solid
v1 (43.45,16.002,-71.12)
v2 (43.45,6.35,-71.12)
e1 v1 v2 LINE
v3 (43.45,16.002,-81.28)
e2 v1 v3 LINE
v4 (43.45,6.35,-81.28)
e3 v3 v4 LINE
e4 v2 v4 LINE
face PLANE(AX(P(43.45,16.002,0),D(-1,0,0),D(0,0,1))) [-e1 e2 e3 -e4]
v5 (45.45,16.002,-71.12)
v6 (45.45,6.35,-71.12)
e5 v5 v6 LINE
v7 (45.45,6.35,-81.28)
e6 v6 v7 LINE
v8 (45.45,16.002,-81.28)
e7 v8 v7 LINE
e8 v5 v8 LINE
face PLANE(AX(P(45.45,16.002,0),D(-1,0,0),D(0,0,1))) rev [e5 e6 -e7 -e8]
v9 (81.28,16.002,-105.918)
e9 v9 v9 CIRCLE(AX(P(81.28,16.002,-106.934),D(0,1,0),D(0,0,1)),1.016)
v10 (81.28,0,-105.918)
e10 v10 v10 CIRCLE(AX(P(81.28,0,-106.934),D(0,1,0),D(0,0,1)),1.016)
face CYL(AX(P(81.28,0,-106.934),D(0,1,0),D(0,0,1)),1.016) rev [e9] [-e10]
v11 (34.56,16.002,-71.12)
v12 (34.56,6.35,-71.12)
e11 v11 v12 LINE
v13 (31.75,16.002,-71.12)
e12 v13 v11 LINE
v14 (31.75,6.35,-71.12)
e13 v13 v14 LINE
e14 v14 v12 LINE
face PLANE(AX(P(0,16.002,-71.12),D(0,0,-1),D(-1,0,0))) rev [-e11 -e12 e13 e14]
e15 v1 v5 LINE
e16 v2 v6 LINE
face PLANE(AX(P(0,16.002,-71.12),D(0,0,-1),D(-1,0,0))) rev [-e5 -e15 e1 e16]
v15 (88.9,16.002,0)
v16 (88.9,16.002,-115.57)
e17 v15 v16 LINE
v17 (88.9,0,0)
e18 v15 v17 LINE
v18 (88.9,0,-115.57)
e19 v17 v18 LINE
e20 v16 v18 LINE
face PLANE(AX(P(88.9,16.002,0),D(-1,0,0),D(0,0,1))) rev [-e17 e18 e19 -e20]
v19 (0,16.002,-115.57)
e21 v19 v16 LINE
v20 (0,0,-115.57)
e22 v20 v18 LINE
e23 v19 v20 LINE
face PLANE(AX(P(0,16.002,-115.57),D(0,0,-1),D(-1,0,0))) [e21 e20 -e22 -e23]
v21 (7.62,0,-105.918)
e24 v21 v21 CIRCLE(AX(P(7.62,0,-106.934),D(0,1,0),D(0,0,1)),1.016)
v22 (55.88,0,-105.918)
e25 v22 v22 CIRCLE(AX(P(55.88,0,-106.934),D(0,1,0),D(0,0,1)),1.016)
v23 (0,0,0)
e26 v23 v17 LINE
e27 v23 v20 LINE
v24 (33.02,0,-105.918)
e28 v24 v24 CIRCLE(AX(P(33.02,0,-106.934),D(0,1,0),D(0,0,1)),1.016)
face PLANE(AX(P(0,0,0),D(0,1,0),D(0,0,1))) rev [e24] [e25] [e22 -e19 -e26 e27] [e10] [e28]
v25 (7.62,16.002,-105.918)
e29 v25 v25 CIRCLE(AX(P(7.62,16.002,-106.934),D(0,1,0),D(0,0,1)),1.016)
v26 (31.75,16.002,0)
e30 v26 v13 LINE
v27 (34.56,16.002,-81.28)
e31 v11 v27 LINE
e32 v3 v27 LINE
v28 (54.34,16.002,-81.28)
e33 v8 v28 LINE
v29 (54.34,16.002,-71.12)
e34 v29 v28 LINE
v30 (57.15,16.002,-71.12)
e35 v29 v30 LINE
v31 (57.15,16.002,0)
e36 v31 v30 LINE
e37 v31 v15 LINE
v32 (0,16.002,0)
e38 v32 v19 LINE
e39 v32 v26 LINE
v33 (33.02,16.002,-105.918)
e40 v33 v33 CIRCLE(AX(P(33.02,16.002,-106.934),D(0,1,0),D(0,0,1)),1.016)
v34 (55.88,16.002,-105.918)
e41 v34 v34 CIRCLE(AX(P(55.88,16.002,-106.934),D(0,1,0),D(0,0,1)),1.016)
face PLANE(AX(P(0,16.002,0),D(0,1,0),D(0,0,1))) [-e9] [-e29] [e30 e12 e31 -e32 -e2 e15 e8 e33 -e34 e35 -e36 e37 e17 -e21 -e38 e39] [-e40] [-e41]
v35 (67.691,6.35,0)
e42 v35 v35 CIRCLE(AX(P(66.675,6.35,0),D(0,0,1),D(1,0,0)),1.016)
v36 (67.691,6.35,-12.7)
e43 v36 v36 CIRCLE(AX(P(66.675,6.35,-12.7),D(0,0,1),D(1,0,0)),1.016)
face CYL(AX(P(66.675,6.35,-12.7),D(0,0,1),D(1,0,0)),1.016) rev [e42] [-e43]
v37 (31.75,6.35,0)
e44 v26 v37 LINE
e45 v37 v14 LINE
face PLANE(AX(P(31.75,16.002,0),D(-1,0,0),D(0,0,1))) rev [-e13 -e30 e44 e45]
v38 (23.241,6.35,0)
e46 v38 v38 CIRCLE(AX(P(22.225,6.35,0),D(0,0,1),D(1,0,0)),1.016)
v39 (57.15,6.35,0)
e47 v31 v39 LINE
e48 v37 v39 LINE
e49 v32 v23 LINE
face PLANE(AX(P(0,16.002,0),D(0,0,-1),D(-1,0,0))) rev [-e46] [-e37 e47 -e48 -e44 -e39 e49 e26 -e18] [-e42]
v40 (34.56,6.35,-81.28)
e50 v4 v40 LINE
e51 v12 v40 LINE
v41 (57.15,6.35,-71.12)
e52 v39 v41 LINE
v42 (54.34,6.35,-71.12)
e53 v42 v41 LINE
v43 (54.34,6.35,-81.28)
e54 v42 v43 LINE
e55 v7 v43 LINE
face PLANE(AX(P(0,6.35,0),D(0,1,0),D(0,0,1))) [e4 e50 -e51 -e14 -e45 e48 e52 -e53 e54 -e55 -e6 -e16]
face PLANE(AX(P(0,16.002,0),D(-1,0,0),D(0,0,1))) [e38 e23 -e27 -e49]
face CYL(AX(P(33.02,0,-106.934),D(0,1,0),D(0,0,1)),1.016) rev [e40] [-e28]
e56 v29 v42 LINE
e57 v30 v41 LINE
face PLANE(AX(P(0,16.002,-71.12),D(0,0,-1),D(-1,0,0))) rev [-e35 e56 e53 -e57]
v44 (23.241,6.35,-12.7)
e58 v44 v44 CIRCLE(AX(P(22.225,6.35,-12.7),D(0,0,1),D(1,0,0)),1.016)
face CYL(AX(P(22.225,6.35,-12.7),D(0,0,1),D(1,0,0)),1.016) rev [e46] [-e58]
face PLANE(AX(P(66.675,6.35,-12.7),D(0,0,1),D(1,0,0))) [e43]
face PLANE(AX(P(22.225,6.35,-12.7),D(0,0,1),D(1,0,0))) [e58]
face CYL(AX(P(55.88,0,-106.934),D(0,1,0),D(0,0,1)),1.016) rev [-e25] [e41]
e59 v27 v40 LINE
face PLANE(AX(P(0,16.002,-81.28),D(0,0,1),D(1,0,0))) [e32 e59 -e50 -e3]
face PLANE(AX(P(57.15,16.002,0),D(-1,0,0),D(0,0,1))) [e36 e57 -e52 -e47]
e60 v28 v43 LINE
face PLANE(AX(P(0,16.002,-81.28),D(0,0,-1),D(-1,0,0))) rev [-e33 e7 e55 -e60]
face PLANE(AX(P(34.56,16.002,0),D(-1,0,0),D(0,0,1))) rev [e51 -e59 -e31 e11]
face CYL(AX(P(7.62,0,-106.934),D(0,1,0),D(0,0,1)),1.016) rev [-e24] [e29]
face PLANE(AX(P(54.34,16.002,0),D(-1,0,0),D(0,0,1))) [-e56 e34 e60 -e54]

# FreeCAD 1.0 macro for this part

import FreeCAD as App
import Part
import Sketcher

V = App.Vector
Q = App.Units.Quantity


def add_polygon(sketch, points):
    """Adds a closed chain of lines whose ends are joined by coincident constraints."""
    first, n = sketch.GeometryCount, len(points)
    for a, b in zip(points, points[1:] + points[:1]):
        sketch.addGeometry(Part.LineSegment(App.Vector(*a, 0), App.Vector(*b, 0)), False)
    for i in range(n):
        sketch.addConstraint(Sketcher.Constraint("Coincident", first + i, 2, first + (i + 1) % n, 1))

doc = App.newDocument("Part")
body = doc.addObject("PartDesign::Body", "Body")

sketch1 = body.newObject("Sketcher::SketchObject", "Sketch")
sketch1.AttachmentSupport = (doc.getObject("XZ_Plane"), [""])
sketch1.MapMode = "FlatFace"
add_polygon(sketch1, [(0, -115.6), (0, 0), (31.8, 0), (31.8, -71.1), (34.6, -71.1), (34.6, -81.3), (43.5, -81.3), (43.5, -71.1), (45.5, -71.1), (45.5, -81.3), (54.3, -81.3), (54.3, -71.1), (57.1, -71.1), (57.1, 0), (88.9, 0), (88.9, -115.6)])
sketch1.addConstraint(Sketcher.Constraint("Vertical", 0))
sketch1.addConstraint(Sketcher.Constraint("Horizontal", 1))
sketch1.addConstraint(Sketcher.Constraint("Vertical", 2))
sketch1.addConstraint(Sketcher.Constraint("Horizontal", 3))
sketch1.addConstraint(Sketcher.Constraint("Vertical", 4))
sketch1.addConstraint(Sketcher.Constraint("Horizontal", 5))
sketch1.addConstraint(Sketcher.Constraint("Vertical", 6))
sketch1.addConstraint(Sketcher.Constraint("Horizontal", 7))
sketch1.addConstraint(Sketcher.Constraint("Vertical", 8))
sketch1.addConstraint(Sketcher.Constraint("Horizontal", 9))
sketch1.addConstraint(Sketcher.Constraint("Vertical", 10))
sketch1.addConstraint(Sketcher.Constraint("Horizontal", 11))
sketch1.addConstraint(Sketcher.Constraint("Vertical", 12))
sketch1.addConstraint(Sketcher.Constraint("Horizontal", 13))
sketch1.addConstraint(Sketcher.Constraint("Vertical", 14))
sketch1.addConstraint(Sketcher.Constraint("Horizontal", 15))
sketch1.addConstraint(Sketcher.Constraint("Coincident", 0, 2, -1, 1))
sketch1.addConstraint(Sketcher.Constraint("PointOnObject", 12, 2, -1))
sketch1.addConstraint(Sketcher.Constraint("Horizontal", 3, 2, 6, 2))
sketch1.addConstraint(Sketcher.Constraint("Horizontal", 5, 2, 8, 2))
sketch1.addConstraint(Sketcher.Constraint("Horizontal", 7, 2, 10, 2))
sketch1.addConstraint(Sketcher.Constraint("Equal", 5, 9))
sketch1.addConstraint(Sketcher.Constraint("Equal", 3, 11))
sketch1.addConstraint(Sketcher.Constraint("Equal", 1, 13))
sketch1.addConstraint(Sketcher.Constraint("DistanceX", 15, 2, 15, 1, Q("3.5 in")))
sketch1.addConstraint(Sketcher.Constraint("DistanceY", 2, 2, 2, 1, Q("2.8 in")))
sketch1.addConstraint(Sketcher.Constraint("DistanceY", 4, 2, 4, 1, Q("0.4 in")))
sketch1.addConstraint(Sketcher.Constraint("DistanceX", 1, 2, 12, 2, Q("1 in")))
sketch1.addConstraint(Sketcher.Constraint("DistanceX", 5, 1, 5, 2, Q("0.35 in")))
sketch1.addConstraint(Sketcher.Constraint("DistanceY", 0, 1, 0, 2, Q("4.55 in")))
sketch1.addConstraint(Sketcher.Constraint("DistanceX", 3, 1, 3, 2, 2.81))
pad1 = body.newObject("PartDesign::Pad", "Pad")
pad1.Profile = sketch1
pad1.Length = Q("0.63 in")
pad1.Reversed = True
body2 = doc.addObject("PartDesign::Body", "Body001")

sketch2 = body2.newObject("Sketcher::SketchObject", "Sketch001")
sketch2.AttachmentSupport = (doc.getObject("XZ_Plane001"), [""])
sketch2.MapMode = "FlatFace"
add_polygon(sketch2, [(32, -71), (32, 0), (57, 0), (57, -71)])
sketch2.addConstraint(Sketcher.Constraint("Vertical", 0))
sketch2.addConstraint(Sketcher.Constraint("Horizontal", 1))
sketch2.addConstraint(Sketcher.Constraint("Vertical", 2))
sketch2.addConstraint(Sketcher.Constraint("Horizontal", 3))
sketch2.addConstraint(Sketcher.Constraint("PointOnObject", 0, 2, -1))
sketch2.addConstraint(Sketcher.Constraint("DistanceX", 1, 1, 1, 2, Q("1 in")))
sketch2.addConstraint(Sketcher.Constraint("DistanceY", 0, 1, 0, 2, Q("2.8 in")))
sketch2.addConstraint(Sketcher.Constraint("DistanceX", -1, 1, 0, 2, Q("1.25 in")))
pad2 = body2.newObject("PartDesign::Pad", "Pad001")
pad2.Profile = sketch2
pad2.Length = Q("0.25 in")
pad2.Reversed = True
doc.recompute()

boolean = body.newObject("PartDesign::Boolean", "Boolean")
boolean.Type = "Fuse"
boolean.addObjects([body2])

sketch3 = body.newObject("Sketcher::SketchObject", "Sketch002")
sketch3.AttachmentSupport = (doc.getObject("XZ_Plane"), [""])
sketch3.MapMode = "FlatFace"
add_polygon(sketch3, [(35, -81), (35, -71), (43, -71), (43, -81)])
add_polygon(sketch3, [(45, -81), (45, -71), (54, -71), (54, -81)])
sketch3.addConstraint(Sketcher.Constraint("Vertical", 0))
sketch3.addConstraint(Sketcher.Constraint("Horizontal", 1))
sketch3.addConstraint(Sketcher.Constraint("Vertical", 2))
sketch3.addConstraint(Sketcher.Constraint("Horizontal", 3))
sketch3.addConstraint(Sketcher.Constraint("Vertical", 4))
sketch3.addConstraint(Sketcher.Constraint("Horizontal", 5))
sketch3.addConstraint(Sketcher.Constraint("Vertical", 6))
sketch3.addConstraint(Sketcher.Constraint("Horizontal", 7))
sketch3.addConstraint(Sketcher.Constraint("Horizontal", 1, 2, 4, 2))
sketch3.addConstraint(Sketcher.Constraint("Horizontal", 3, 2, 6, 2))
sketch3.addConstraint(Sketcher.Constraint("Equal", 3, 5))
sketch3.addConstraint(Sketcher.Constraint("DistanceY", 0, 1, 0, 2, Q("0.4 in")))
sketch3.addConstraint(Sketcher.Constraint("DistanceX", 1, 1, 1, 2, Q("0.35 in")))
sketch3.addConstraint(Sketcher.Constraint("DistanceY", 0, 2, -1, 1, Q("2.8 in")))
sketch3.addConstraint(Sketcher.Constraint("DistanceX", -1, 1, 0, 2, 34.56))
sketch3.addConstraint(Sketcher.Constraint("DistanceX", -1, 1, 4, 2, 45.45))
pad3 = body.newObject("PartDesign::Pad", "Pad002")
pad3.Profile = sketch3
pad3.Length = Q("0.25 in")
pad3.Reversed = True

sketch4 = body.newObject("Sketcher::SketchObject", "Sketch003")
sketch4.AttachmentSupport = (doc.getObject("XZ_Plane"), [""])
sketch4.MapMode = "FlatFace"
sketch4.AttachmentOffset = App.Placement(V(0, 0, -0.63 * 25.4), App.Rotation())
sketch4.addGeometry(Part.Circle(V(7.6, -106.9, 0), V(0, 0, 1), 1), False)
sketch4.addGeometry(Part.Circle(V(33, -106.9, 0), V(0, 0, 1), 1), False)
sketch4.addGeometry(Part.Circle(V(55.9, -106.9, 0), V(0, 0, 1), 1), False)
sketch4.addGeometry(Part.Circle(V(81.3, -106.9, 0), V(0, 0, 1), 1), False)
sketch4.addConstraint(Sketcher.Constraint("Equal", 0, 1))
sketch4.addConstraint(Sketcher.Constraint("Equal", 1, 2))
sketch4.addConstraint(Sketcher.Constraint("Equal", 2, 3))
sketch4.addConstraint(Sketcher.Constraint("Horizontal", 0, 3, 1, 3))
sketch4.addConstraint(Sketcher.Constraint("Horizontal", 1, 3, 2, 3))
sketch4.addConstraint(Sketcher.Constraint("Horizontal", 2, 3, 3, 3))
sketch4.addConstraint(Sketcher.Constraint("Diameter", 0, Q("0.08 in")))
sketch4.addConstraint(Sketcher.Constraint("DistanceX", 0, 3, 1, 3, Q("1 in")))
sketch4.addConstraint(Sketcher.Constraint("DistanceX", 2, 3, 3, 3, Q("1 in")))
sketch4.addConstraint(Sketcher.Constraint("DistanceX", -1, 1, 0, 3, Q("0.3 in")))
sketch4.addConstraint(Sketcher.Constraint("DistanceX", -1, 1, 2, 3, Q("2.2 in")))
sketch4.addConstraint(Sketcher.Constraint("DistanceY", 0, 3, -1, 1, Q("4.21 in")))
pocket1 = body.newObject("PartDesign::Pocket", "Pocket")
pocket1.Profile = sketch4
pocket1.Type = "ThroughAll"
pocket1.Reversed = True

sketch5 = body.newObject("Sketcher::SketchObject", "Sketch004")
sketch5.AttachmentSupport = (doc.getObject("XY_Plane"), [""])
sketch5.MapMode = "FlatFace"
sketch5.addGeometry(Part.Circle(V(22.2, 6.3, 0), V(0, 0, 1), 1), False)
sketch5.addGeometry(Part.Circle(V(66.7, 6.3, 0), V(0, 0, 1), 1), False)
sketch5.addConstraint(Sketcher.Constraint("Equal", 0, 1))
sketch5.addConstraint(Sketcher.Constraint("Horizontal", 0, 3, 1, 3))
sketch5.addConstraint(Sketcher.Constraint("Diameter", 0, Q("0.08 in")))
sketch5.addConstraint(Sketcher.Constraint("DistanceY", -1, 1, 0, 3, Q("0.25 in")))
sketch5.addConstraint(Sketcher.Constraint("DistanceX", 0, 3, 1, 3, Q("1.75 in")))
sketch5.addConstraint(Sketcher.Constraint("DistanceX", -1, 1, 0, 3, Q("0.875 in")))
pocket2 = body.newObject("PartDesign::Pocket", "Pocket001")
pocket2.Profile = sketch5
pocket2.Length = Q("0.5 in")

doc.recompute()
